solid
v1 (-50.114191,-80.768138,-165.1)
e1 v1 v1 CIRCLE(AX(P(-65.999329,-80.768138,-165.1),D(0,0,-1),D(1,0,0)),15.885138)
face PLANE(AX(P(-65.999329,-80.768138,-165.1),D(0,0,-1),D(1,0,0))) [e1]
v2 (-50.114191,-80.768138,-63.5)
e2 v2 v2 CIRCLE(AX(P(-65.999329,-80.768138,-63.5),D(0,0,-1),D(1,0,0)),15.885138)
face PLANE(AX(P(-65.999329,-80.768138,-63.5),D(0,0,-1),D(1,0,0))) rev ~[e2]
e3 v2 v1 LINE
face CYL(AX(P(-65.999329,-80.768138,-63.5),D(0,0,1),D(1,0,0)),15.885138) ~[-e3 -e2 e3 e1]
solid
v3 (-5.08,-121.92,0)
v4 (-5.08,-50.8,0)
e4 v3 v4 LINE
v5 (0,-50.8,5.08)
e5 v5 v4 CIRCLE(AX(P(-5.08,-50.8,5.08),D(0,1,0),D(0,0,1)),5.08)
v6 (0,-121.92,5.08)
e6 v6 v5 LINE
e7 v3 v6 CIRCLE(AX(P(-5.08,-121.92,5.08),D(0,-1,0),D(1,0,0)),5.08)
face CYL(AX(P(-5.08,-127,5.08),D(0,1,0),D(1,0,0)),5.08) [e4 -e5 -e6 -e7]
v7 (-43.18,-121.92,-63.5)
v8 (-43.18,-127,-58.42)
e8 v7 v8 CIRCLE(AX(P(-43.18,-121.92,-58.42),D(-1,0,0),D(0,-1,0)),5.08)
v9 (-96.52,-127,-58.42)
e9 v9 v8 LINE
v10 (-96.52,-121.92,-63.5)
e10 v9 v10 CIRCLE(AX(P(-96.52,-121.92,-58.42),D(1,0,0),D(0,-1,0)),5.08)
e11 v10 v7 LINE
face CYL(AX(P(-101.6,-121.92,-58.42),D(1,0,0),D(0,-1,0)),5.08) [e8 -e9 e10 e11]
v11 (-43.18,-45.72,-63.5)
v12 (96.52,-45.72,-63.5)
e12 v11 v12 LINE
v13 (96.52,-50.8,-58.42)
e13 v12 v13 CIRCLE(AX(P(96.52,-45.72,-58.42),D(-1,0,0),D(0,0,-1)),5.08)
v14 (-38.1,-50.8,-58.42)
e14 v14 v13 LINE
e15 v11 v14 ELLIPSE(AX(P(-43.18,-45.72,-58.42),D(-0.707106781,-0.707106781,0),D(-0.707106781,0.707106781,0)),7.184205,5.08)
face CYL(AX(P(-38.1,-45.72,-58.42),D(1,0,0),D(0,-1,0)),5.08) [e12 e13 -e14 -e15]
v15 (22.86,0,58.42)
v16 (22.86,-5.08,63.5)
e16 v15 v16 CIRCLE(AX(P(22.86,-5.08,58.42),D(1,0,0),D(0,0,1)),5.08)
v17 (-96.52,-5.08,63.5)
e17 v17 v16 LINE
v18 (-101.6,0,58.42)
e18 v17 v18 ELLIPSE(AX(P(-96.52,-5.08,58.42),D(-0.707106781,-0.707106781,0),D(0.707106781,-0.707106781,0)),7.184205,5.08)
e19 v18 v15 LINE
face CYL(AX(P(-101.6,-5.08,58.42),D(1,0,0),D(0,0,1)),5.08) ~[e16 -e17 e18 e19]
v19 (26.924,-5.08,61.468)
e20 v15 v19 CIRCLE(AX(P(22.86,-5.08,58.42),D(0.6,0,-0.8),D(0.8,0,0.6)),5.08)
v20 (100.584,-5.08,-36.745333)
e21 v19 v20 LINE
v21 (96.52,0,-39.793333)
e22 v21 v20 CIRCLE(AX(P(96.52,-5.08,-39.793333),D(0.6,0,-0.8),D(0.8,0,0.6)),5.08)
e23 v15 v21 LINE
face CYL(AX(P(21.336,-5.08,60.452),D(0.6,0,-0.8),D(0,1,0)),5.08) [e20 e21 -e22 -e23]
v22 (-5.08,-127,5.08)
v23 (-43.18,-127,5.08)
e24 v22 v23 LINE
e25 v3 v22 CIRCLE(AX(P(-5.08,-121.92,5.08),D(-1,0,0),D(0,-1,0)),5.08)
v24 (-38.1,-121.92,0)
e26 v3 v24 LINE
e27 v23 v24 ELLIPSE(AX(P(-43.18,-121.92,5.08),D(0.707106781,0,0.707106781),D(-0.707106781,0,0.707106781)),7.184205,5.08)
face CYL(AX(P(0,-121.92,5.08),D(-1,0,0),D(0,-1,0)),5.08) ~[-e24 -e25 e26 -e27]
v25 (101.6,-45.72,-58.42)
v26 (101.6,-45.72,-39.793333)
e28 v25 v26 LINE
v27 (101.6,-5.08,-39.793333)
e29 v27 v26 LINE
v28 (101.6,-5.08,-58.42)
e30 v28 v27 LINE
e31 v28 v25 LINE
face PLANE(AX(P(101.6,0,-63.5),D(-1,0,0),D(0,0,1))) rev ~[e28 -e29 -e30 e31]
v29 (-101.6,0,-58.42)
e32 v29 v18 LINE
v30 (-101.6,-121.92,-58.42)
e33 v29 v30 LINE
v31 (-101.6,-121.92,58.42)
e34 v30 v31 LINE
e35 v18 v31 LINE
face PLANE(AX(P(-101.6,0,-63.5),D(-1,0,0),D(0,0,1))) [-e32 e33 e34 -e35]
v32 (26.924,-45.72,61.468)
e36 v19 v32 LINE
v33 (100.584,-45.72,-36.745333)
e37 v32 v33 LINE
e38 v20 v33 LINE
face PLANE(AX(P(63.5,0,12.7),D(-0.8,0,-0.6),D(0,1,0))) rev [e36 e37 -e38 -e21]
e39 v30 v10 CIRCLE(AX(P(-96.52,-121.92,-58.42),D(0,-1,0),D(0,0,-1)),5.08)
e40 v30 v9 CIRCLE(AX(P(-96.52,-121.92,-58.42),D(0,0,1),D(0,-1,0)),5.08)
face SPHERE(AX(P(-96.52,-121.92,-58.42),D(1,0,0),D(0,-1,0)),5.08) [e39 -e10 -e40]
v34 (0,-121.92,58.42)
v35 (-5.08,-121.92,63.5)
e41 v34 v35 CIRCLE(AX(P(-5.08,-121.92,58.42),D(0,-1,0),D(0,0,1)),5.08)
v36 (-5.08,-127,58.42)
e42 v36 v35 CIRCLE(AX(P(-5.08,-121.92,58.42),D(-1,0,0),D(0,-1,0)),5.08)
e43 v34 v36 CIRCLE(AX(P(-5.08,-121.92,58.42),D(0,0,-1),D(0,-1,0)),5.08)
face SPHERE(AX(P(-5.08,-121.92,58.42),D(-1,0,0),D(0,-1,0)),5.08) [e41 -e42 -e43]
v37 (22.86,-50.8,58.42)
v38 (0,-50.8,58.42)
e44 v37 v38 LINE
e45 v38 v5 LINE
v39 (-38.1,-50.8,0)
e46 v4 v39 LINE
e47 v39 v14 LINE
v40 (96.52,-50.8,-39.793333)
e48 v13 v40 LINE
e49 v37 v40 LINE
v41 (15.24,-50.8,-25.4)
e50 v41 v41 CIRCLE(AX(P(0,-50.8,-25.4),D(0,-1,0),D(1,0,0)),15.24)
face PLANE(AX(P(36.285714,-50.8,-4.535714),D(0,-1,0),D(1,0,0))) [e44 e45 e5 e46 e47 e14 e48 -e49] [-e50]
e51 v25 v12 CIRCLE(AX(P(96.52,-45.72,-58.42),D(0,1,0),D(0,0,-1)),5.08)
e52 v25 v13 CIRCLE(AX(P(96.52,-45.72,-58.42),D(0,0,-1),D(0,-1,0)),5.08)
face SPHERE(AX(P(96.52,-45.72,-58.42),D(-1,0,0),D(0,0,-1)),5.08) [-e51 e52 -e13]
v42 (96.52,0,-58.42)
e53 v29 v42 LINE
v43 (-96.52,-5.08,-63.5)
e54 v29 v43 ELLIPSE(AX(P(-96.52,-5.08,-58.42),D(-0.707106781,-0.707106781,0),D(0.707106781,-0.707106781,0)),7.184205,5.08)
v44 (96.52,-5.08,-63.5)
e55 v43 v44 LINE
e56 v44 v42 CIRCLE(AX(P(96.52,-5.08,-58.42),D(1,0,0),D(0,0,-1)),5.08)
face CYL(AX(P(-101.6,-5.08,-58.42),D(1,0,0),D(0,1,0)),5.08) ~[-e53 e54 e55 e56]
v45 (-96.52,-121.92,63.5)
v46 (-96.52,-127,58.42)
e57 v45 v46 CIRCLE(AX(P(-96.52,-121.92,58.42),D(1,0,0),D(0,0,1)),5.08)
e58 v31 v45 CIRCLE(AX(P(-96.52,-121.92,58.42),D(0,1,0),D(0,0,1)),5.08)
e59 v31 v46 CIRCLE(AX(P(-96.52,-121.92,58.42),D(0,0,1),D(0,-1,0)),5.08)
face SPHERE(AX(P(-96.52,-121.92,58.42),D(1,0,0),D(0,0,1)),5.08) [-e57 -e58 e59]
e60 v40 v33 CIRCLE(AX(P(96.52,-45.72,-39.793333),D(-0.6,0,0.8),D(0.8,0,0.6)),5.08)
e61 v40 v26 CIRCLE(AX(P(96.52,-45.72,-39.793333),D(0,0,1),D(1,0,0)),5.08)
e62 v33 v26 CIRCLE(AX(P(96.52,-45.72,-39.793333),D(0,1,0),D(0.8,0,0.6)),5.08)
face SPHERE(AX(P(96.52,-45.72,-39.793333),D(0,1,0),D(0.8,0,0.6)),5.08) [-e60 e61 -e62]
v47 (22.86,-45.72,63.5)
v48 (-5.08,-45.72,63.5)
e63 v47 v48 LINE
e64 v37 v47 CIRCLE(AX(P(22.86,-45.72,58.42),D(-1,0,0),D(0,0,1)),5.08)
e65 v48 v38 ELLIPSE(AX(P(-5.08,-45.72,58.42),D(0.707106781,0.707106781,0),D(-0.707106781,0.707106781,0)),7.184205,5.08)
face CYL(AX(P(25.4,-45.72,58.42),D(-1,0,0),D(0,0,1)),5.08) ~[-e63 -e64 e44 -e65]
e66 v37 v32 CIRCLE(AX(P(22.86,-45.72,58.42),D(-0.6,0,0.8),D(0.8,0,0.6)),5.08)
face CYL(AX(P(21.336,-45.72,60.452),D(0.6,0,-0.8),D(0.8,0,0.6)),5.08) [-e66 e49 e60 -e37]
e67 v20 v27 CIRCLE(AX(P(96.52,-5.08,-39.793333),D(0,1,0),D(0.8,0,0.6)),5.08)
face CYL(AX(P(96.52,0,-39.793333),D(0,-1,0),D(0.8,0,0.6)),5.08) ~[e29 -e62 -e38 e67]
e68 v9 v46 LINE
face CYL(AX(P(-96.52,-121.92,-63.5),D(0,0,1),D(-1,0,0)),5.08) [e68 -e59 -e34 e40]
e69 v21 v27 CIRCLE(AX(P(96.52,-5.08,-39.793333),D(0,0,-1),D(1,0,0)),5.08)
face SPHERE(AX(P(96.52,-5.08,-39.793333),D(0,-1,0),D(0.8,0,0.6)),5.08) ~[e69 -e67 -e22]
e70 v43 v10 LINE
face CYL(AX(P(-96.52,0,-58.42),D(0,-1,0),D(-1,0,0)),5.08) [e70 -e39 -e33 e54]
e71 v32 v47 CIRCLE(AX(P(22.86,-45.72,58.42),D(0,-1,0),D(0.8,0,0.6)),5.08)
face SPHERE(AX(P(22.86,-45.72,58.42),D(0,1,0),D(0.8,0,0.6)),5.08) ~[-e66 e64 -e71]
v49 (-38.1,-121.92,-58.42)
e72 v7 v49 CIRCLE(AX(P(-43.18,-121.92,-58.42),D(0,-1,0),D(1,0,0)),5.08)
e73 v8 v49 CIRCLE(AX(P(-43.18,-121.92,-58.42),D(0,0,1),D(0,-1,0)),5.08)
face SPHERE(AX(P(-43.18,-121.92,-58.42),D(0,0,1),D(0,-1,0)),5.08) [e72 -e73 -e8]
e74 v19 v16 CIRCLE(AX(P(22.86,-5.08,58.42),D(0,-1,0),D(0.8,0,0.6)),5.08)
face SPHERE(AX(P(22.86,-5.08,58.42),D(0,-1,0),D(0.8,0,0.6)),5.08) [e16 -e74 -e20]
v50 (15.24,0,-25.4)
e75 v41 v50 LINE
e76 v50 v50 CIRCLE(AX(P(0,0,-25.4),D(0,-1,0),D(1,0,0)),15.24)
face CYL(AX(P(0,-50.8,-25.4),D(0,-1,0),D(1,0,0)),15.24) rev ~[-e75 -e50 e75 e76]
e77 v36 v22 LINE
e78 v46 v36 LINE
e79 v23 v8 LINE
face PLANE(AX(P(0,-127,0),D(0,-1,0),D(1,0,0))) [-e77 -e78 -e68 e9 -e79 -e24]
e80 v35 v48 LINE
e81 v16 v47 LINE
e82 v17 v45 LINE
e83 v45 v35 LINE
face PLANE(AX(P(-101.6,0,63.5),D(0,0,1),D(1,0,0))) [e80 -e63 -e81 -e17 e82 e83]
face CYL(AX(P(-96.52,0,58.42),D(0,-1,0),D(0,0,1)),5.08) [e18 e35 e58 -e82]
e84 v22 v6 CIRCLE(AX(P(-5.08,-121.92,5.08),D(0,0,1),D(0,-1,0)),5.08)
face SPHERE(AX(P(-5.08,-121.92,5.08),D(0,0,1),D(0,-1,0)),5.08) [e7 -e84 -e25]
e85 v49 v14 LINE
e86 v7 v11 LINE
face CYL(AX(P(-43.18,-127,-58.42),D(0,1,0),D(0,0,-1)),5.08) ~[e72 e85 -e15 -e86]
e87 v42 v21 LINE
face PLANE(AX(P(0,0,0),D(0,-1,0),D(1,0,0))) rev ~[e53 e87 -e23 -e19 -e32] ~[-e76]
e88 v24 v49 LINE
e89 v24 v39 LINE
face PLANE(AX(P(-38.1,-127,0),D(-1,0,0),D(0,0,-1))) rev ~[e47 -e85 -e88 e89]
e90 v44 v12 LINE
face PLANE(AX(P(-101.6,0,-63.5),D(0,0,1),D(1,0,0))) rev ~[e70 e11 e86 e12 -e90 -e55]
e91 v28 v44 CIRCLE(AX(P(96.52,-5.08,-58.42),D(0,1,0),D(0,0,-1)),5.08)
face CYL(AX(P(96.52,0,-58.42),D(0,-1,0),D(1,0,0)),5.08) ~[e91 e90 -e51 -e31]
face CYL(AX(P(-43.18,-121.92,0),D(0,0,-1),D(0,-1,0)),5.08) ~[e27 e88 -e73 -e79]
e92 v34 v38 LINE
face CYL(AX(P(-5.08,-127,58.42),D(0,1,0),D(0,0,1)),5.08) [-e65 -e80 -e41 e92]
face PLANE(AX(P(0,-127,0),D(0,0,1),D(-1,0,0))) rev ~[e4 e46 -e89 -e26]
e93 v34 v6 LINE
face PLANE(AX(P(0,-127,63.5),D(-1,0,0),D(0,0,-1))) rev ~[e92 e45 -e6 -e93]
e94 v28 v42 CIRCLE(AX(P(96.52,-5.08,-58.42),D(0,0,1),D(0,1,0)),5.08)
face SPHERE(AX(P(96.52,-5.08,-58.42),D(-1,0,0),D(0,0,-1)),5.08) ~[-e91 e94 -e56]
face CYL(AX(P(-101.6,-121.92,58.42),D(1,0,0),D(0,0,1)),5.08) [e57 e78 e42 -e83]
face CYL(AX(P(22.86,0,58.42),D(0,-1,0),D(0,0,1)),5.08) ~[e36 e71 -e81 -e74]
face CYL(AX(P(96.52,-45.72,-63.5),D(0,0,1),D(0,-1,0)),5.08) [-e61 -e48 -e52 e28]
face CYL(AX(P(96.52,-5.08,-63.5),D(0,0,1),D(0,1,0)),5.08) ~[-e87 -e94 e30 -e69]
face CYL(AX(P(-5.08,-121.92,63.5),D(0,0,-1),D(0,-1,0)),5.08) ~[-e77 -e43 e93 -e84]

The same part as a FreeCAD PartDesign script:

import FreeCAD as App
import Part
import Sketcher
Q = App.Units.Quantity


def edges_at(feature, points):
    """Names of the edges that pass closest to the given points."""
    edges = feature.Shape.Edges
    near = lambda p: min(range(len(edges)), key=lambda i: edges[i].distToShape(Part.Vertex(*p))[0])
    return sorted({f"Edge{near(p) + 1}" for p in points})


def add_polygon(sketch, points):
    """Adds a closed chain of lines whose ends are joined by coincident constraints."""
    first, n = sketch.GeometryCount, len(points)
    for a, b in zip(points, points[1:] + points[:1]):
        sketch.addGeometry(Part.LineSegment(App.Vector(*a, 0), App.Vector(*b, 0)), False)
    for i in range(n):
        sketch.addConstraint(Sketcher.Constraint("Coincident", first + i, 2, first + (i + 1) % n, 1))

doc = App.newDocument("Part")
body = doc.addObject("PartDesign::Body", "Body")

sketch1 = body.newObject("Sketcher::SketchObject", "Sketch")
sketch1.AttachmentSupport = (doc.getObject("XZ_Plane"), [""])
sketch1.MapMode = "FlatFace"
add_polygon(sketch1, [(-102, 64), (-102, -64), (102, -64), (102, 64)])
sketch1.addConstraint(Sketcher.Constraint("Vertical", 0))
sketch1.addConstraint(Sketcher.Constraint("Horizontal", 1))
sketch1.addConstraint(Sketcher.Constraint("Vertical", 2))
sketch1.addConstraint(Sketcher.Constraint("Horizontal", 3))
sketch1.addConstraint(Sketcher.Constraint("Symmetric", 0, 2, 2, 2, -1, 1))
sketch1.addConstraint(Sketcher.Constraint("DistanceX", 1, 1, 1, 2, Q("8 in")))
sketch1.addConstraint(Sketcher.Constraint("DistanceY", 0, 2, 0, 1, Q("5 in")))
pad1 = body.newObject("PartDesign::Pad", "Pad")
pad1.Profile = sketch1
pad1.Length = Q("5 in")

sketch2 = body.newObject("Sketcher::SketchObject", "Sketch001")
sketch2.AttachmentSupport = (doc.getObject("XZ_Plane"), [""])
sketch2.MapMode = "FlatFace"
sketch2.AttachmentOffset = App.Placement(App.Vector(0, 0, 5 * 25.4), App.Rotation())
add_polygon(sketch2, [(-38, 0), (-38, -64), (102, -64), (102, 64), (0, 64), (0, 0)])
sketch2.addConstraint(Sketcher.Constraint("Vertical", 0))
sketch2.addConstraint(Sketcher.Constraint("Horizontal", 1))
sketch2.addConstraint(Sketcher.Constraint("Vertical", 2))
sketch2.addConstraint(Sketcher.Constraint("Horizontal", 3))
sketch2.addConstraint(Sketcher.Constraint("Vertical", 4))
sketch2.addConstraint(Sketcher.Constraint("Horizontal", 5))
sketch2.addConstraint(Sketcher.Constraint("Coincident", 4, 2, -1, 1))
sketch2.addConstraint(Sketcher.Constraint("Equal", 0, 4))
sketch2.addConstraint(Sketcher.Constraint("DistanceX", 3, 2, 3, 1, Q("4 in")))
sketch2.addConstraint(Sketcher.Constraint("DistanceY", 2, 1, 2, 2, Q("5 in")))
sketch2.addConstraint(Sketcher.Constraint("DistanceX", 1, 1, 1, 2, Q("5.5 in")))
pocket1 = body.newObject("PartDesign::Pocket", "Pocket")
pocket1.Profile = sketch2
pocket1.Length = Q("3 in")
doc.recompute()

chamfer = body.newObject("PartDesign::Chamfer", "Chamfer")
chamfer.Base = (pocket1, edges_at(pocket1, [(101.6, -25.4, 63.5)]))
chamfer.ChamferType = "Two distances"
chamfer.Size = Q("3 in")
chamfer.Size2 = Q("4 in")
doc.recompute()

fillet = body.newObject("PartDesign::Fillet", "Fillet")
fillet.Base = (chamfer, edges_at(chamfer, [
    (-50.8, -127, 63.5),
    (-101.6, -63.5, 63.5),
    (12.7, -50.8, 63.5),
    (0, -127, 31.75),
    (-19.05, -127, 0),
    (-38.1, -127, -31.75),
    (-69.85, -127, -63.5),
    (-101.6, -127, 0),
    (-38.1, -88.9, -63.5),
    (31.75, -50.8, -63.5),
    (0, 0, -63.5),
    (101.6, -25.4, -63.5),
    (-101.6, -63.5, -63.5),
    (-38.1, 0, 63.5),
    (25.4, -25.4, 63.5),
    (0, -88.9, 63.5),
    (0, -88.9, 0),
    (101.6, -25.4, -38.1),
    (63.5, -50.8, 12.7),
    (63.5, 0, 12.7),
    (101.6, -50.8, -50.8),
    (101.6, 0, -50.8),
]))
fillet.Radius = Q("0.2 in")

sketch3 = body.newObject("Sketcher::SketchObject", "Sketch002")
sketch3.AttachmentSupport = (doc.getObject("XZ_Plane"), [""])
sketch3.MapMode = "FlatFace"
sketch3.AttachmentOffset = App.Placement(App.Vector(0, 0, 2 * 25.4), App.Rotation())
sketch3.addGeometry(Part.Circle(App.Vector(0, -25, 0), App.Vector(0, 0, 1), 15), False)
sketch3.addConstraint(Sketcher.Constraint("PointOnObject", 0, 3, -2))
sketch3.addConstraint(Sketcher.Constraint("Diameter", 0, Q("1.2 in")))
sketch3.addConstraint(Sketcher.Constraint("DistanceY", 0, 3, -1, 1, Q("1 in")))
pocket2 = body.newObject("PartDesign::Pocket", "Pocket001")
pocket2.Profile = sketch3
pocket2.Length = Q("15 in")
body2 = doc.addObject("PartDesign::Body", "Body001")

sketch4 = body2.newObject("Sketcher::SketchObject", "Sketch003")
sketch4.AttachmentSupport = (doc.getObject("XY_Plane001"), [""])
sketch4.MapMode = "FlatFace"
sketch4.AttachmentOffset = App.Placement(App.Vector(0, 0, -2.5 * 25.4), App.Rotation())
sketch4.addGeometry(Part.Circle(App.Vector(-66, -81, 0), App.Vector(0, 0, 1), 16), False)
sketch4.addConstraint(Sketcher.Constraint("Diameter", 0, Q("31.770276 mm")))
sketch4.addConstraint(Sketcher.Constraint("DistanceX", 0, 3, -1, 1, Q("65.999329 mm")))
sketch4.addConstraint(Sketcher.Constraint("DistanceY", 0, 3, -1, 1, Q("80.768138 mm")))
pad2 = body2.newObject("PartDesign::Pad", "Pad001")
pad2.Profile = sketch4
pad2.Length = Q("4 in")
pad2.Reversed = True

doc.recompute()
